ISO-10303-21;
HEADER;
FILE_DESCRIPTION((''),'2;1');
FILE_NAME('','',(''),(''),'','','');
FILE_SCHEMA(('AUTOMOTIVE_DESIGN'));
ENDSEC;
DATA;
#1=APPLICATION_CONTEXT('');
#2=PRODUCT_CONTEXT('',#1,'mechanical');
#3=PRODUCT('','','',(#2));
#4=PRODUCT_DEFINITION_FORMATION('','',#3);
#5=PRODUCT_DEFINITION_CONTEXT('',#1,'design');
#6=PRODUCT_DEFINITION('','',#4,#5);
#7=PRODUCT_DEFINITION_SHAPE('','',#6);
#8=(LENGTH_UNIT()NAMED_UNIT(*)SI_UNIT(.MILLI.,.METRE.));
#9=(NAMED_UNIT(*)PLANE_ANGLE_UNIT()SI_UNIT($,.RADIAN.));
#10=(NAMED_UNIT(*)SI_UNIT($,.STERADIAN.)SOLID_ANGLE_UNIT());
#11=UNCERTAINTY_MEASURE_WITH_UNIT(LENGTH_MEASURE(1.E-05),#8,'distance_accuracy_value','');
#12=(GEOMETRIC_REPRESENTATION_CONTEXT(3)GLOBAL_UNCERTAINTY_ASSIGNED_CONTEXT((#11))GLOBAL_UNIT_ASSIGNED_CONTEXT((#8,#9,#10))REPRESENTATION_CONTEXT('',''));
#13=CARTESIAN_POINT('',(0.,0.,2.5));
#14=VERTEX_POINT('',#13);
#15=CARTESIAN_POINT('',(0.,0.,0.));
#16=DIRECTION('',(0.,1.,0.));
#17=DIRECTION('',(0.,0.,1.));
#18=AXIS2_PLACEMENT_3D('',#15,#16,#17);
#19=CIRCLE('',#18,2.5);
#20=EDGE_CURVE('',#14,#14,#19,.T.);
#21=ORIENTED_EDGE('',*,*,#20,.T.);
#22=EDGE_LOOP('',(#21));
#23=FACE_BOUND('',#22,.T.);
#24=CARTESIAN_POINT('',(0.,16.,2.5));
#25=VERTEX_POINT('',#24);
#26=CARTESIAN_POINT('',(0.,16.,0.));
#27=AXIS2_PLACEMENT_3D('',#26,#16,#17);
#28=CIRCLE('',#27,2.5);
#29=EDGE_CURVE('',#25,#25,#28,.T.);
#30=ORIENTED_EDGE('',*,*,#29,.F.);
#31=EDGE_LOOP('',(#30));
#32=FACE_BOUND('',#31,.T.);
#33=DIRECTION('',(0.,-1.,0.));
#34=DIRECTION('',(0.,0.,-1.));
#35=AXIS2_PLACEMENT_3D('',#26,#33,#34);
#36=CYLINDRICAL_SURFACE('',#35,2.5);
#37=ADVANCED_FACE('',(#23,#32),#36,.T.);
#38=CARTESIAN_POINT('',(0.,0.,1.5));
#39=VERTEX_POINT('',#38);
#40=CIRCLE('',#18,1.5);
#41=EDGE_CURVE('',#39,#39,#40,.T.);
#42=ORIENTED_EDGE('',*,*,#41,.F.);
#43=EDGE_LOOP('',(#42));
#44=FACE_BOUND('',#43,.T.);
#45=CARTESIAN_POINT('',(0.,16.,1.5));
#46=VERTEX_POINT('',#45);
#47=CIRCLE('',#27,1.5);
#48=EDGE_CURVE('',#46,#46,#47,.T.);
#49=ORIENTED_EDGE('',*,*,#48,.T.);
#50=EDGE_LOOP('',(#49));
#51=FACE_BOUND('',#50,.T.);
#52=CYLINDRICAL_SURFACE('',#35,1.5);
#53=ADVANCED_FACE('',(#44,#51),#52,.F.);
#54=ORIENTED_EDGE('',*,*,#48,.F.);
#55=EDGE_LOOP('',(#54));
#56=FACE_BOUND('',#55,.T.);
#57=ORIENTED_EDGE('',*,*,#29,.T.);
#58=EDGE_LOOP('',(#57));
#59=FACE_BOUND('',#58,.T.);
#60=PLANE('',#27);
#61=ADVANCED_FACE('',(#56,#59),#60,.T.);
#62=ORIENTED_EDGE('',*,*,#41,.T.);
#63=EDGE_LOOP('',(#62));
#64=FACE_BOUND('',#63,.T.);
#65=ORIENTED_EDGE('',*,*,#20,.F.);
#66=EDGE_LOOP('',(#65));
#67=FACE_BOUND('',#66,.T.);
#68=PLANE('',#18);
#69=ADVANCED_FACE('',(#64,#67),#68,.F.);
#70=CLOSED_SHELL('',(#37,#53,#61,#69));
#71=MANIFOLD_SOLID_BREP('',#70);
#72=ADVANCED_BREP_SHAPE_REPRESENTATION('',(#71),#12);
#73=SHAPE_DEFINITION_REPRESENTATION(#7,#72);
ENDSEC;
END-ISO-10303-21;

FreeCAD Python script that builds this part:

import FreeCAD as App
import Part
import Sketcher
from FreeCAD import Vector
Q = App.Units.Quantity

doc = App.newDocument("Part")
body = doc.addObject("PartDesign::Body", "Body")

# Sketch on XZ plane
sketch1 = body.newObject("Sketcher::SketchObject", "Sketch")
sketch1.AttachmentSupport = (doc.getObject("XZ_Plane"), [""])
sketch1.MapMode = "FlatFace"
sketch1.addGeometry([
    Part.Circle(Vector(0, 0, 0), Vector(0, 0, 1), 2.5),
    Part.Circle(Vector(0, 0, 0), Vector(0, 0, 1), 1.5),
], False)
sketch1.addConstraint([
    Sketcher.Constraint("Coincident", 0, 3, -1, 1),
    Sketcher.Constraint("Coincident", 1, 3, -1, 1),
    Sketcher.Constraint("Diameter", 0, Q("5 mm")),
    Sketcher.Constraint("Diameter", 1, Q("3 mm")),
])
pad1 = body.newObject("PartDesign::Pad", "Pad")
pad1.Profile = sketch1
pad1.Length = 16
pad1.Reversed = True

doc.recompute()
